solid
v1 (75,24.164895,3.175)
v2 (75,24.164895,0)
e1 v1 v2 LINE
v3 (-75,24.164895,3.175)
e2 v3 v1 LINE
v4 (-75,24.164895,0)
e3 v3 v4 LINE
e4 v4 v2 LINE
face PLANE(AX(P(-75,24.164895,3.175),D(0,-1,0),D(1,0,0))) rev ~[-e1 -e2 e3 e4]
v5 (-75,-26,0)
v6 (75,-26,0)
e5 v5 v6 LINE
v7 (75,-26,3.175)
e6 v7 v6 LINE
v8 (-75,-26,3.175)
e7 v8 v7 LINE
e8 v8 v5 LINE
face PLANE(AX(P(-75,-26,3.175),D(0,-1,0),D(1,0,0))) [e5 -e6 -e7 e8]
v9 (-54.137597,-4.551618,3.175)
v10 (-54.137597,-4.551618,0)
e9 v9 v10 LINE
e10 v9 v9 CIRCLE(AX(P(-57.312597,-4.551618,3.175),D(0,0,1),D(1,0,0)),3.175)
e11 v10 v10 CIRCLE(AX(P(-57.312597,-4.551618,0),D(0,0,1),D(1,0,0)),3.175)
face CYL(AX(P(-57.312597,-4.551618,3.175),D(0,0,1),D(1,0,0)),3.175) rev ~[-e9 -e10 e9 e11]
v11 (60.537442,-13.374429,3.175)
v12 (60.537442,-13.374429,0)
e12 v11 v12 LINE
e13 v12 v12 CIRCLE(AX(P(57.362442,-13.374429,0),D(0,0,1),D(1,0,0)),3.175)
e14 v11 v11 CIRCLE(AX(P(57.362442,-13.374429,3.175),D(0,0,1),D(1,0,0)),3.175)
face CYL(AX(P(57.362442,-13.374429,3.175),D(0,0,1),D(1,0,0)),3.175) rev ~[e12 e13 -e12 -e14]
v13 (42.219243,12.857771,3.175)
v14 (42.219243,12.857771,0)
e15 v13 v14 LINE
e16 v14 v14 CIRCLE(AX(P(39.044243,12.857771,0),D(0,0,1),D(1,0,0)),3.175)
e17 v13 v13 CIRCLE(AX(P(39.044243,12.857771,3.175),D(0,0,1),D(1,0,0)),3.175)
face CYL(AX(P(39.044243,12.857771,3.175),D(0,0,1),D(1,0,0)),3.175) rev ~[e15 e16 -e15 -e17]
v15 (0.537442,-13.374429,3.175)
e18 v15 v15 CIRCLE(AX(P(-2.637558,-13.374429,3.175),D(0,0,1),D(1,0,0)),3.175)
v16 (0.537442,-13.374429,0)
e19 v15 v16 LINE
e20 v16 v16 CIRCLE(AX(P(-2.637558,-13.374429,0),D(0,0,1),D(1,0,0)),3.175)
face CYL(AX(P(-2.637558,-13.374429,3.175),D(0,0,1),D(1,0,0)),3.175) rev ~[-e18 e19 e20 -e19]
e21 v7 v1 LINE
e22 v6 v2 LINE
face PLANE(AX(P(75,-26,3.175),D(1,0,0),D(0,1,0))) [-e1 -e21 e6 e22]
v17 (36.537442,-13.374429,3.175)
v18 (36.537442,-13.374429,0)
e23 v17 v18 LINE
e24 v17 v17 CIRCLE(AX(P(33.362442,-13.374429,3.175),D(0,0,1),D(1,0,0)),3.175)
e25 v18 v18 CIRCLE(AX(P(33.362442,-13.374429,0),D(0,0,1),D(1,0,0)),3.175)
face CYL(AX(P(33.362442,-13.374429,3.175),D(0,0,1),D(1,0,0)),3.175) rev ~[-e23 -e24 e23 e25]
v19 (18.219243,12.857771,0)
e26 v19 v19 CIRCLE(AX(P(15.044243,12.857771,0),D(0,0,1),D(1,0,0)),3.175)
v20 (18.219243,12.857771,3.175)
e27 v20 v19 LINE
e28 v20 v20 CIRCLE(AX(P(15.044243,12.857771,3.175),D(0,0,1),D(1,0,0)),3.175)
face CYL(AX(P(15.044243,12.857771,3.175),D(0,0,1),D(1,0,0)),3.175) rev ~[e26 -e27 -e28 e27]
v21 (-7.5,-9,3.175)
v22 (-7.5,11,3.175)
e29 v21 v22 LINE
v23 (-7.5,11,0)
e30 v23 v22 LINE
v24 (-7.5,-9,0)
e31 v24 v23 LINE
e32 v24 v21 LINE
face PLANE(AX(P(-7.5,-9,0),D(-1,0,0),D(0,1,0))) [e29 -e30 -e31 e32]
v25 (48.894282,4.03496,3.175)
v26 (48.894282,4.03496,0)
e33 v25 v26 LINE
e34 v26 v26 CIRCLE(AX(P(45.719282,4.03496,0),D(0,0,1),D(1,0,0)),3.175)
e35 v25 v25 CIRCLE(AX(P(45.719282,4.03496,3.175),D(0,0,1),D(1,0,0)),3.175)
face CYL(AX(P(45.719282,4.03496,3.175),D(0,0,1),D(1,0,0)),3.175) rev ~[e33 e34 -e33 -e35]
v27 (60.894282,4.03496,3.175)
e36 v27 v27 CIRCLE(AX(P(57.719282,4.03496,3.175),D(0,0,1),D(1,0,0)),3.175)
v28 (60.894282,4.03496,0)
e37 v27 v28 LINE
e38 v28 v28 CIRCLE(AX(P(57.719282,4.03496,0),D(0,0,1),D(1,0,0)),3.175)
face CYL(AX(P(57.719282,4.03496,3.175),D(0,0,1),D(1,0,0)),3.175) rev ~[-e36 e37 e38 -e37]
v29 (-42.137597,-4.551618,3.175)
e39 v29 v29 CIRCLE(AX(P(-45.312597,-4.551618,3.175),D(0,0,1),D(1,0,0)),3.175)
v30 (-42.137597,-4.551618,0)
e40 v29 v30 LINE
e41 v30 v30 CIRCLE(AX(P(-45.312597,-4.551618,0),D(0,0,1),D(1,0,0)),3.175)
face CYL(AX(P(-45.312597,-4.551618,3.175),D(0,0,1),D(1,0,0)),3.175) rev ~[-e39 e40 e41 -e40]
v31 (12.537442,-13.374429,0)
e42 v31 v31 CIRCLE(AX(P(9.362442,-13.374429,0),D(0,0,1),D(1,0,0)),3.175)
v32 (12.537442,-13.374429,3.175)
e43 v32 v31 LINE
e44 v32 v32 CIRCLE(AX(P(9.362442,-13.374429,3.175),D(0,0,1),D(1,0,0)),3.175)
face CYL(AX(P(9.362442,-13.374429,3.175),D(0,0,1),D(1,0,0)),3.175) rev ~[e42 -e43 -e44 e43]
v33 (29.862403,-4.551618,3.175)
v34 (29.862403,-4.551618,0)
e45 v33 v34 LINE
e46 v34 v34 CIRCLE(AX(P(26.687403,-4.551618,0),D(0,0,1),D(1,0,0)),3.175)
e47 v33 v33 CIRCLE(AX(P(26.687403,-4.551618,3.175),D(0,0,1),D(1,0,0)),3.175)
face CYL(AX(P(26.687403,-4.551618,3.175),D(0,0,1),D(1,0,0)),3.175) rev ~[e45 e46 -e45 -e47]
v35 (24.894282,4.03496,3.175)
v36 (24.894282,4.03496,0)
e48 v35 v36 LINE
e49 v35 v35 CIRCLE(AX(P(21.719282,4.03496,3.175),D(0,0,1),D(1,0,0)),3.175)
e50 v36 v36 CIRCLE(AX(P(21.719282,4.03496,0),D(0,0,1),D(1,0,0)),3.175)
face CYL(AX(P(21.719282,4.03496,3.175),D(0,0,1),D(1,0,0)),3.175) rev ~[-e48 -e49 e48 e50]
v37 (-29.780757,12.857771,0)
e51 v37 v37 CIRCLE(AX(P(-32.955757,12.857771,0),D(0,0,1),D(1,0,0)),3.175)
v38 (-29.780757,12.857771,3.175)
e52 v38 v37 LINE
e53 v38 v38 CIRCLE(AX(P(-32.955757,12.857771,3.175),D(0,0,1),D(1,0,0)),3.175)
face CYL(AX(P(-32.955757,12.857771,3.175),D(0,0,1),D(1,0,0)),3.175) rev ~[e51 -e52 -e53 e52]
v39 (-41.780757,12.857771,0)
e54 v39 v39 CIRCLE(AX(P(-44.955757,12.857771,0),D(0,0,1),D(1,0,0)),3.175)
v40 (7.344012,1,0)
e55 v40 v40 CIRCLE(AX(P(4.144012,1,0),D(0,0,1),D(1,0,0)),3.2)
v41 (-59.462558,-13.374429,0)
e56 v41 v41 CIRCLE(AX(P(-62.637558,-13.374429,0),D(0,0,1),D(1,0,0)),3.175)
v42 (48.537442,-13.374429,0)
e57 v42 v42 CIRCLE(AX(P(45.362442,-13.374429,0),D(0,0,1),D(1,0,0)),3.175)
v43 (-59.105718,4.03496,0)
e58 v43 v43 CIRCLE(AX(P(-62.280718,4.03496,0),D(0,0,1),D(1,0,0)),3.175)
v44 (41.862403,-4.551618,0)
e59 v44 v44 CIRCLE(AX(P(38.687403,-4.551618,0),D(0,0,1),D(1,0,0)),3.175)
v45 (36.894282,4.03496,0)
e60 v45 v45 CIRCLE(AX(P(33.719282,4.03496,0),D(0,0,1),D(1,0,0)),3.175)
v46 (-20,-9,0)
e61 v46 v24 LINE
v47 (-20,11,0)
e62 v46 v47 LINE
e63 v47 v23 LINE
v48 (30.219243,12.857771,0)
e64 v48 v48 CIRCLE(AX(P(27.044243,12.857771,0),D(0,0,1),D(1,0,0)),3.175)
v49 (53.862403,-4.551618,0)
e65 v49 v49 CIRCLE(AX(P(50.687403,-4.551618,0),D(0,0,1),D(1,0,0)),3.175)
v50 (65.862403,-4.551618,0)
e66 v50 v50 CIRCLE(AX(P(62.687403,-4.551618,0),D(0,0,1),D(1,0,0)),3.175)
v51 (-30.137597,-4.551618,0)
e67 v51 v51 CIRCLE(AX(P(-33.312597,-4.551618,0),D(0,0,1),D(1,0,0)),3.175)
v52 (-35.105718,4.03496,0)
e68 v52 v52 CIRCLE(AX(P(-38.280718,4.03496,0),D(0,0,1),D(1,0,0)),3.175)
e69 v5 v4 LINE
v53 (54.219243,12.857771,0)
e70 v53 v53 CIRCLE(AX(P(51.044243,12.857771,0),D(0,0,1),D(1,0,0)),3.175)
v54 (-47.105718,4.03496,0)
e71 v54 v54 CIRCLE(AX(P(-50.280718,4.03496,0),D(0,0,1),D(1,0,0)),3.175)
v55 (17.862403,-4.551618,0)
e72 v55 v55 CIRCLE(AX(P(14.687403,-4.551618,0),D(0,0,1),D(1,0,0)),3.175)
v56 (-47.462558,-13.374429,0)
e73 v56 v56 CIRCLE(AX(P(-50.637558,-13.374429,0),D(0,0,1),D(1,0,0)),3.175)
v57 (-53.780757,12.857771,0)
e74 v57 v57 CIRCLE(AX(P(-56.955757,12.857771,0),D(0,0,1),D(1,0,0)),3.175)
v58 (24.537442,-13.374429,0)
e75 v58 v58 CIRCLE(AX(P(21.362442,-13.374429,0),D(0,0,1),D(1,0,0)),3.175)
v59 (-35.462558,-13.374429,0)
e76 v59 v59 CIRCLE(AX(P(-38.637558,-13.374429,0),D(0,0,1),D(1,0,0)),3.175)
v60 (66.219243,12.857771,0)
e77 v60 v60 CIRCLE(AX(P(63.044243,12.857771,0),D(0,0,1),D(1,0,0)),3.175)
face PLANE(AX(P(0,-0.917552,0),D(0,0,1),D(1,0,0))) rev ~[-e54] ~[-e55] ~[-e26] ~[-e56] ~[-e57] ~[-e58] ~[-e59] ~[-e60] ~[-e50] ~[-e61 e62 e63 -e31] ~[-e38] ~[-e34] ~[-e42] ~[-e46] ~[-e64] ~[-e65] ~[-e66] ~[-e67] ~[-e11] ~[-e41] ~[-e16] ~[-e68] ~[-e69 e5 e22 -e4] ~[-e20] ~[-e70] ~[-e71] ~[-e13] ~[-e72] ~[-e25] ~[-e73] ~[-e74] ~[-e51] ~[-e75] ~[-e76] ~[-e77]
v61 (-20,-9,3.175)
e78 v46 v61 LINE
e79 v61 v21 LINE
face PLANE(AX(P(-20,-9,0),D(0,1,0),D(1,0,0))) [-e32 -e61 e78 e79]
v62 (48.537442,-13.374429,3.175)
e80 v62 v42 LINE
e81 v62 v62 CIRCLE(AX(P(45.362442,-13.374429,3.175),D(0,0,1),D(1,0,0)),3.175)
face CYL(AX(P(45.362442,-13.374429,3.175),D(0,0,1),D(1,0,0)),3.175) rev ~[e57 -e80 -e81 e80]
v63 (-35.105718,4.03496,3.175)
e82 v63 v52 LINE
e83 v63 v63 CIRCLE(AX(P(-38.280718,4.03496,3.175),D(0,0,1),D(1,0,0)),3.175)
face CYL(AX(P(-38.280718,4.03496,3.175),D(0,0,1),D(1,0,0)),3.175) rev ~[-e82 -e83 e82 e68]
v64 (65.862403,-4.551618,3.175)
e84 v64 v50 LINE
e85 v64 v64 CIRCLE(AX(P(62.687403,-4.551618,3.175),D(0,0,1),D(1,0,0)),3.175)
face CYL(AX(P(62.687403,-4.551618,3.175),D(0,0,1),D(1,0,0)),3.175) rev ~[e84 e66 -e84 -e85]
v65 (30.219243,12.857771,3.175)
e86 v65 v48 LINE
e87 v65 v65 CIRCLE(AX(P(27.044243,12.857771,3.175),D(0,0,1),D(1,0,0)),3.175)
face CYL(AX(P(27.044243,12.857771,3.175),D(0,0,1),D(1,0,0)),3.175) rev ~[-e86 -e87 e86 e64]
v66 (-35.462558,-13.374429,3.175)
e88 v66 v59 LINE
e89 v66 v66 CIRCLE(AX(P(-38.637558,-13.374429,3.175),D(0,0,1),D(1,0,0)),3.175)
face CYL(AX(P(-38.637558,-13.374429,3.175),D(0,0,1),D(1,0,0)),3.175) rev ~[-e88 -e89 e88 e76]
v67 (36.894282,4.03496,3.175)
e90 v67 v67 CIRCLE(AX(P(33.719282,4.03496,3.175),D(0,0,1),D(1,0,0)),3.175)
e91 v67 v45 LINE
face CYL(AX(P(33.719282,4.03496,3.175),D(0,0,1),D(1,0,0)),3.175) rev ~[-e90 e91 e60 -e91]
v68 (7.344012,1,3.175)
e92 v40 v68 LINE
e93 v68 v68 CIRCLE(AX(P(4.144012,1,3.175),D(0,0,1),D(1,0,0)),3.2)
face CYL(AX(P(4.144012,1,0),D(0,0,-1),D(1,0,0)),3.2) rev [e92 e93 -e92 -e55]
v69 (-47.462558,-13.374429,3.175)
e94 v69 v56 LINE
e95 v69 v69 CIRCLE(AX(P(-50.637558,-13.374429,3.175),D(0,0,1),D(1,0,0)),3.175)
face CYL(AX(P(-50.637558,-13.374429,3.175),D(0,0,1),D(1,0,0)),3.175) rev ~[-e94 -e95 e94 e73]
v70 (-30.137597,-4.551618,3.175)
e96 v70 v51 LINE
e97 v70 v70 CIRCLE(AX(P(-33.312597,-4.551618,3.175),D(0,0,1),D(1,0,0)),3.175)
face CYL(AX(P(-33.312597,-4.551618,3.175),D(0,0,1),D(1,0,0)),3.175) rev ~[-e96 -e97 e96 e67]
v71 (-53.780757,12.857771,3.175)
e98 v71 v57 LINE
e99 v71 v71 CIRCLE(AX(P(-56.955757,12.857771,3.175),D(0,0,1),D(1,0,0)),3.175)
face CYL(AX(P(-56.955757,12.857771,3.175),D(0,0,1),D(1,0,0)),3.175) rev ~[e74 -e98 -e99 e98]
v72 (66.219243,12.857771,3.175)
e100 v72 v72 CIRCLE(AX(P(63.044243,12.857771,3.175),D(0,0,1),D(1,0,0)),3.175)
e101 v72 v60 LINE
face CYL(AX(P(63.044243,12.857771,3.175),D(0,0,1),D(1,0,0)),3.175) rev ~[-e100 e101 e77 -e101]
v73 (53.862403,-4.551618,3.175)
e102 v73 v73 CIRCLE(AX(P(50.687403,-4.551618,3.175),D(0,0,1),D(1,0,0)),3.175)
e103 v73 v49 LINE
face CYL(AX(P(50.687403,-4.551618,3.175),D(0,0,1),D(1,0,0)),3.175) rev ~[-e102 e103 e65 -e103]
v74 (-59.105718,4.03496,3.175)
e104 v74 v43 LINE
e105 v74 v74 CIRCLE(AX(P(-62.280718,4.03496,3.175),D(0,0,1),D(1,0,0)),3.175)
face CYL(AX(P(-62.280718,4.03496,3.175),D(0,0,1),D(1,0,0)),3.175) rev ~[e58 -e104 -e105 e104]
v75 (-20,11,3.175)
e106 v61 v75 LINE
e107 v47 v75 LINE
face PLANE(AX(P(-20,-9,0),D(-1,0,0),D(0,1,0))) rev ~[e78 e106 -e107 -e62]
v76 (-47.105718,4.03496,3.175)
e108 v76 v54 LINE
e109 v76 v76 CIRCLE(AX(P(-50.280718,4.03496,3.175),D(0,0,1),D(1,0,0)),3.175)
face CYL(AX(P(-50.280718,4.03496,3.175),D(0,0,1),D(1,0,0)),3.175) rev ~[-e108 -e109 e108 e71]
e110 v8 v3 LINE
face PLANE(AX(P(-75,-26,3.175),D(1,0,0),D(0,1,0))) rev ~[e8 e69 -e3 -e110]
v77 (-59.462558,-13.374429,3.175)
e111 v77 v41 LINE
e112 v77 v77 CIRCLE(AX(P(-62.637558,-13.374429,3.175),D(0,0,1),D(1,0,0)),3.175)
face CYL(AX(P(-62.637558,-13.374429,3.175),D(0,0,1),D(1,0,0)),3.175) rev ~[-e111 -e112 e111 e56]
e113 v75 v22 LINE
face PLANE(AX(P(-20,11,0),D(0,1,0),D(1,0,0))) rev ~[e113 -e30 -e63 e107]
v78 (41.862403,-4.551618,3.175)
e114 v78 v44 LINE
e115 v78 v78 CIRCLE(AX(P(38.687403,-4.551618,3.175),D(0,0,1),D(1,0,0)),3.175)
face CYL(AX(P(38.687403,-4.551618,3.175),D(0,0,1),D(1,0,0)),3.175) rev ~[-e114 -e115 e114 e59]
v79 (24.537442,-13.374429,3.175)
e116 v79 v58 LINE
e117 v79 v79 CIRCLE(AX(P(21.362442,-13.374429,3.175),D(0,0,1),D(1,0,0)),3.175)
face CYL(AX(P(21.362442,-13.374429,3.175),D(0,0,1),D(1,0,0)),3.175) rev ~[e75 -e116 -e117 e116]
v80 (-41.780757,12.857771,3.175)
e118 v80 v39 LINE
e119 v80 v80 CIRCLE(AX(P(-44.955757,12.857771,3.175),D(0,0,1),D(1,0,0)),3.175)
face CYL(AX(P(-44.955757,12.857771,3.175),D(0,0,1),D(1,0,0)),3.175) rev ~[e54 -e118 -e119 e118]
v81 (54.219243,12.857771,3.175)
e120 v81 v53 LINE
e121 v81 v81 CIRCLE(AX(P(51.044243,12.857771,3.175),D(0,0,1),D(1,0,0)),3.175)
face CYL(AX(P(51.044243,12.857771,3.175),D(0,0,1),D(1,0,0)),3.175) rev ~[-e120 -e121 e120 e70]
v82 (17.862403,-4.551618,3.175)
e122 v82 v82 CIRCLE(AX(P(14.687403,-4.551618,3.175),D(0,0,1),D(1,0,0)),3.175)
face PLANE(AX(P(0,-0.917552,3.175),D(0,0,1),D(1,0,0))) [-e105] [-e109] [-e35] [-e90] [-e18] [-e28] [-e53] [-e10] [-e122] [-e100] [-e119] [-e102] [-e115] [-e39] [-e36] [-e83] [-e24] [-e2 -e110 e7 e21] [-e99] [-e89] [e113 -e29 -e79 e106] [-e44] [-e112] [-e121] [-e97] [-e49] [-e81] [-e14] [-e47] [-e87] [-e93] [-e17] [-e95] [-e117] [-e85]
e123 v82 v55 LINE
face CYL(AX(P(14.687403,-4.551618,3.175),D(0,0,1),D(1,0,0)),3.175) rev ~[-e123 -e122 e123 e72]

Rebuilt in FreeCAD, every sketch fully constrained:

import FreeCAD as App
import Part
import Sketcher

V = App.Vector
Q = App.Units.Quantity

doc = App.newDocument("Part")
params = doc.addObject("Spreadsheet::Sheet", "Params")
for row, (alias, value) in enumerate([
    ("sketch1_height", "3 mm"),
    ("sketch1_height2", "10.25 mm"),
    ("pad1_length", "3.175 mm"),
    ("sketch2_height", "3 mm"),
    ("sketch2_height2", "10.75 mm"),
    ("pad2_length", "3.175 mm"),
    ("sketch3_height", "3 mm"),
    ("sketch3_height2", "13.25 mm"),
    ("pad3_length", "3.175 mm"),
    ("sketch4_height", "3 mm"),
    ("sketch4_height2", "10.75 mm"),
    ("pad4_length", "3.175 mm"),
    ("sketch5_diameter", "6.4 mm"),
    ("sketch5_height", "7 mm"),
    ("sketch5_height2", "16 mm"),
    ("sketch5_height3", "20 mm"),
    ("sketch5_width", "12.5 mm"),
    ("pad5_length", "3.175 mm"),
    ("sketch6_height", "48 mm"),
    ("pad6_length", "3.175 mm"),
    ("sketch7_width", "150 mm"),
    ("sketch7_width2", "146 mm"),
    ("sketch7_height", "48 mm"),
    ("pad7_length", "3.175 mm"),
    ("sketch8_diameter", "6.35 mm"),
    ("pocket1_length", "3.175 mm"),
], start=1):
    params.set(f"A{row}", alias)
    params.set(f"B{row}", "=" + value)
    params.setAlias(f"B{row}", alias)

body = doc.addObject("PartDesign::Body", "Body")

# Sketch on XY plane
sketch1 = doc.addObject("Sketcher::SketchObject", "Sketch")
body.addObject(sketch1)
sketch1.AttachmentSupport = (doc.XY_Plane, [""])
sketch1.MapMode = "FlatFace"
sketch1.addGeometry([
    Part.LineSegment(V(57.7, -13.8, 0), V(57.7, -24, 0)),  # 0
    Part.LineSegment(V(57.7, -24, 0), V(73, -24, 0)),  # 1
    Part.LineSegment(V(73, -24, 0), V(73, -10.8, 0)),  # 2
    Part.LineSegment(V(73, -10.8, 0), V(53.1, -10.8, 0)),  # 3
    Part.LineSegment(V(53.1, -10.8, 0), V(53.1, -13.8, 0)),  # 4
    Part.LineSegment(V(53.1, -13.8, 0), V(57.7, -13.8, 0)),  # 5
], False)
sketch1.addConstraint([
    Sketcher.Constraint("Coincident", 0, 2, 1, 1),
    Sketcher.Constraint("Coincident", 1, 2, 2, 1),
    Sketcher.Constraint("Coincident", 2, 2, 3, 1),
    Sketcher.Constraint("Coincident", 3, 2, 4, 1),
    Sketcher.Constraint("Coincident", 4, 2, 5, 1),
    Sketcher.Constraint("Coincident", 5, 2, 0, 1),
    Sketcher.Constraint("Vertical", 0),
    Sketcher.Constraint("Horizontal", 1),
    Sketcher.Constraint("Vertical", 2),
    Sketcher.Constraint("Horizontal", 3),
    Sketcher.Constraint("Vertical", 4),
    Sketcher.Constraint("Horizontal", 5),
    Sketcher.Constraint("DistanceY", 4, 2, 4, 1, Q("3 mm")),
    Sketcher.Constraint("DistanceY", 0, 2, -1, 1, Q("24 mm")),
    Sketcher.Constraint("DistanceX", -1, 1, 1, 2, Q("73 mm")),
    Sketcher.Constraint("DistanceY", 0, 2, 0, 1, Q("10.25 mm")),
    Sketcher.Constraint("DistanceX", 5, 1, 5, 2, Q("4.595671 mm")),
    Sketcher.Constraint("DistanceX", 1, 1, 1, 2, Q("15.306253 mm")),
])
sketch1.setExpression("Constraints[12]", "Params.sketch1_height")
sketch1.setExpression("Constraints[15]", "Params.sketch1_height2")
pad1 = doc.addObject("PartDesign::Pad", "Pad")
body.addObject(pad1)
pad1.Profile = sketch1
pad1.setExpression("Length", "Params.pad1_length")
body2 = doc.addObject("PartDesign::Body", "Body001")

# Sketch on XY plane
sketch2 = doc.addObject("Sketcher::SketchObject", "Sketch001")
body2.addObject(sketch2)
sketch2.AttachmentSupport = (doc.getObject("XY_Plane001"), [""])
sketch2.MapMode = "FlatFace"
sketch2.addGeometry([
    Part.LineSegment(V(53.1, 13.2, 0), V(73, 13.2, 0)),  # 0
    Part.LineSegment(V(73, 13.2, 0), V(73, 24, 0)),  # 1
    Part.LineSegment(V(73, 24, 0), V(57.7, 24, 0)),  # 2
    Part.LineSegment(V(57.7, 24, 0), V(57.7, 16.2, 0)),  # 3
    Part.LineSegment(V(57.7, 16.2, 0), V(53.1, 16.2, 0)),  # 4
    Part.LineSegment(V(53.1, 16.2, 0), V(53.1, 13.2, 0)),  # 5
], False)
sketch2.addConstraint([
    Sketcher.Constraint("Coincident", 0, 2, 1, 1),
    Sketcher.Constraint("Coincident", 1, 2, 2, 1),
    Sketcher.Constraint("Coincident", 2, 2, 3, 1),
    Sketcher.Constraint("Coincident", 3, 2, 4, 1),
    Sketcher.Constraint("Coincident", 4, 2, 5, 1),
    Sketcher.Constraint("Coincident", 5, 2, 0, 1),
    Sketcher.Constraint("Horizontal", 0),
    Sketcher.Constraint("Vertical", 1),
    Sketcher.Constraint("Horizontal", 2),
    Sketcher.Constraint("Vertical", 3),
    Sketcher.Constraint("Horizontal", 4),
    Sketcher.Constraint("Vertical", 5),
    Sketcher.Constraint("DistanceY", 5, 2, 5, 1, Q("3 mm")),
    Sketcher.Constraint("DistanceX", -1, 1, 0, 2, Q("73 mm")),
    Sketcher.Constraint("DistanceY", -1, 1, 1, 2, Q("24 mm")),
    Sketcher.Constraint("DistanceY", 1, 1, 1, 2, Q("10.75 mm")),
    Sketcher.Constraint("DistanceX", 4, 2, 4, 1, Q("4.595671 mm")),
    Sketcher.Constraint("DistanceX", 0, 1, 0, 2, Q("19.901924 mm")),
])
sketch2.setExpression("Constraints[12]", "Params.sketch2_height")
sketch2.setExpression("Constraints[15]", "Params.sketch2_height2")
pad2 = doc.addObject("PartDesign::Pad", "Pad001")
body2.addObject(pad2)
pad2.Profile = sketch2
pad2.setExpression("Length", "Params.pad2_length")
body3 = doc.addObject("PartDesign::Body", "Body002")

# Sketch on XY plane
sketch3 = doc.addObject("Sketcher::SketchObject", "Sketch002")
body3.addObject(sketch3)
sketch3.AttachmentSupport = (doc.getObject("XY_Plane002"), [""])
sketch3.MapMode = "FlatFace"
sketch3.addGeometry([
    Part.LineSegment(V(-73, -10.8, 0), V(-73, -24, 0)),  # 0
    Part.LineSegment(V(-73, -24, 0), V(-57.7, -24, 0)),  # 1
    Part.LineSegment(V(-57.7, -24, 0), V(-57.7, -13.8, 0)),  # 2
    Part.LineSegment(V(-57.7, -13.8, 0), V(-53.1, -13.8, 0)),  # 3
    Part.LineSegment(V(-53.1, -13.8, 0), V(-53.1, -10.8, 0)),  # 4
    Part.LineSegment(V(-53.1, -10.8, 0), V(-73, -10.8, 0)),  # 5
], False)
sketch3.addConstraint([
    Sketcher.Constraint("Coincident", 0, 2, 1, 1),
    Sketcher.Constraint("Coincident", 1, 2, 2, 1),
    Sketcher.Constraint("Coincident", 2, 2, 3, 1),
    Sketcher.Constraint("Coincident", 3, 2, 4, 1),
    Sketcher.Constraint("Coincident", 4, 2, 5, 1),
    Sketcher.Constraint("Coincident", 5, 2, 0, 1),
    Sketcher.Constraint("Vertical", 0),
    Sketcher.Constraint("Horizontal", 1),
    Sketcher.Constraint("Vertical", 2),
    Sketcher.Constraint("Horizontal", 3),
    Sketcher.Constraint("Vertical", 4),
    Sketcher.Constraint("Horizontal", 5),
    Sketcher.Constraint("DistanceY", 4, 1, 4, 2, Q("3 mm")),
    Sketcher.Constraint("DistanceX", 0, 2, -1, 1, Q("73 mm")),
    Sketcher.Constraint("DistanceY", 0, 2, -1, 1, Q("24 mm")),
    Sketcher.Constraint("DistanceY", 0, 2, 0, 1, Q("13.25 mm")),
    Sketcher.Constraint("DistanceX", 3, 1, 3, 2, Q("4.595671 mm")),
    Sketcher.Constraint("DistanceX", 1, 1, 1, 2, Q("15.306253 mm")),
])
sketch3.setExpression("Constraints[12]", "Params.sketch3_height")
sketch3.setExpression("Constraints[15]", "Params.sketch3_height2")
pad3 = doc.addObject("PartDesign::Pad", "Pad002")
body3.addObject(pad3)
pad3.Profile = sketch3
pad3.setExpression("Length", "Params.pad3_length")
body4 = doc.addObject("PartDesign::Body", "Body003")

# Sketch on XY plane
sketch4 = doc.addObject("Sketcher::SketchObject", "Sketch003")
body4.addObject(sketch4)
sketch4.AttachmentSupport = (doc.getObject("XY_Plane003"), [""])
sketch4.MapMode = "FlatFace"
sketch4.addGeometry([
    Part.LineSegment(V(-57.7, 24, 0), V(-73, 24, 0)),  # 0
    Part.LineSegment(V(-73, 24, 0), V(-73, 13.2, 0)),  # 1
    Part.LineSegment(V(-73, 13.2, 0), V(-53.1, 13.2, 0)),  # 2
    Part.LineSegment(V(-53.1, 13.2, 0), V(-53.1, 16.2, 0)),  # 3
    Part.LineSegment(V(-53.1, 16.2, 0), V(-57.7, 16.2, 0)),  # 4
    Part.LineSegment(V(-57.7, 16.2, 0), V(-57.7, 24, 0)),  # 5
], False)
sketch4.addConstraint([
    Sketcher.Constraint("Coincident", 0, 2, 1, 1),
    Sketcher.Constraint("Coincident", 1, 2, 2, 1),
    Sketcher.Constraint("Coincident", 2, 2, 3, 1),
    Sketcher.Constraint("Coincident", 3, 2, 4, 1),
    Sketcher.Constraint("Coincident", 4, 2, 5, 1),
    Sketcher.Constraint("Coincident", 5, 2, 0, 1),
    Sketcher.Constraint("Horizontal", 0),
    Sketcher.Constraint("Vertical", 1),
    Sketcher.Constraint("Horizontal", 2),
    Sketcher.Constraint("Vertical", 3),
    Sketcher.Constraint("Horizontal", 4),
    Sketcher.Constraint("Vertical", 5),
    Sketcher.Constraint("DistanceY", 3, 1, 3, 2, Q("3 mm")),
    Sketcher.Constraint("DistanceX", 0, 2, -1, 1, Q("73 mm")),
    Sketcher.Constraint("DistanceY", -1, 1, 0, 2, Q("24 mm")),
    Sketcher.Constraint("DistanceY", 1, 2, 1, 1, Q("10.75 mm")),
    Sketcher.Constraint("DistanceX", 4, 2, 4, 1, Q("4.595671 mm")),
    Sketcher.Constraint("DistanceX", 0, 2, 0, 1, Q("15.306253 mm")),
])
sketch4.setExpression("Constraints[12]", "Params.sketch4_height")
sketch4.setExpression("Constraints[15]", "Params.sketch4_height2")
pad4 = doc.addObject("PartDesign::Pad", "Pad003")
body4.addObject(pad4)
pad4.Profile = sketch4
pad4.setExpression("Length", "Params.pad4_length")
body5 = doc.addObject("PartDesign::Body", "Body004")

# Sketch on XY plane
sketch5 = doc.addObject("Sketcher::SketchObject", "Sketch004")
body5.addObject(sketch5)
sketch5.AttachmentSupport = (doc.getObject("XY_Plane004"), [""])
sketch5.MapMode = "FlatFace"
sketch5.addGeometry([
    Part.LineSegment(V(-43.3, -13.8, 0), V(-43.3, -24, 0)),  # 0
    Part.LineSegment(V(-43.3, -24, 0), V(43.3, -24, 0)),  # 1
    Part.LineSegment(V(43.3, -24, 0), V(43.3, -13.8, 0)),  # 2
    Part.LineSegment(V(43.3, -13.8, 0), V(47.9, -13.8, 0)),  # 3
    Part.LineSegment(V(47.9, -13.8, 0), V(47.9, -6.8, 0)),  # 4
    Part.LineSegment(V(47.9, -6.8, 0), V(47.3, -6.8, 0)),  # 5
    Part.LineSegment(V(47.3, -6.8, 0), V(47.3, 9.2, 0)),  # 6
    Part.LineSegment(V(47.3, 9.2, 0), V(47.9, 9.2, 0)),  # 7
    Part.LineSegment(V(47.9, 9.2, 0), V(47.9, 16.2, 0)),  # 8
    Part.LineSegment(V(47.9, 16.2, 0), V(43.3, 16.2, 0)),  # 9
    Part.LineSegment(V(43.3, 16.2, 0), V(43.3, 24, 0)),  # 10
    Part.LineSegment(V(43.3, 24, 0), V(-43.3, 24, 0)),  # 11
    Part.LineSegment(V(-43.3, 24, 0), V(-43.3, 16.2, 0)),  # 12
    Part.LineSegment(V(-43.3, 16.2, 0), V(-47.9, 16.2, 0)),  # 13
    Part.LineSegment(V(-47.9, 16.2, 0), V(-47.9, 9.2, 0)),  # 14
    Part.LineSegment(V(-47.9, 9.2, 0), V(-47.3, 9.2, 0)),  # 15
    Part.LineSegment(V(-47.3, 9.2, 0), V(-47.3, -6.8, 0)),  # 16
    Part.LineSegment(V(-47.3, -6.8, 0), V(-47.9, -6.8, 0)),  # 17
    Part.LineSegment(V(-47.9, -6.8, 0), V(-47.9, -13.8, 0)),  # 18
    Part.LineSegment(V(-47.9, -13.8, 0), V(-43.3, -13.8, 0)),  # 19
    Part.LineSegment(V(-7.5, -9, 0), V(-20, -9, 0)),  # 20
    Part.LineSegment(V(-20, -9, 0), V(-20, 11, 0)),  # 21
    Part.LineSegment(V(-20, 11, 0), V(-7.5, 11, 0)),  # 22
    Part.LineSegment(V(-7.5, 11, 0), V(-7.5, -9, 0)),  # 23
    Part.Circle(V(4.1, 1, 0), V(0, 0, 1), 3.2),  # 24
], False)
sketch5.addConstraint([
    Sketcher.Constraint("Coincident", 0, 2, 1, 1),
    Sketcher.Constraint("Coincident", 1, 2, 2, 1),
    Sketcher.Constraint("Coincident", 2, 2, 3, 1),
    Sketcher.Constraint("Coincident", 3, 2, 4, 1),
    Sketcher.Constraint("Coincident", 4, 2, 5, 1),
    Sketcher.Constraint("Coincident", 5, 2, 6, 1),
    Sketcher.Constraint("Coincident", 6, 2, 7, 1),
    Sketcher.Constraint("Coincident", 7, 2, 8, 1),
    Sketcher.Constraint("Coincident", 8, 2, 9, 1),
    Sketcher.Constraint("Coincident", 9, 2, 10, 1),
    Sketcher.Constraint("Coincident", 10, 2, 11, 1),
    Sketcher.Constraint("Coincident", 11, 2, 12, 1),
    Sketcher.Constraint("Coincident", 12, 2, 13, 1),
    Sketcher.Constraint("Coincident", 13, 2, 14, 1),
    Sketcher.Constraint("Coincident", 14, 2, 15, 1),
    Sketcher.Constraint("Coincident", 15, 2, 16, 1),
    Sketcher.Constraint("Coincident", 16, 2, 17, 1),
    Sketcher.Constraint("Coincident", 17, 2, 18, 1),
    Sketcher.Constraint("Coincident", 18, 2, 19, 1),
    Sketcher.Constraint("Coincident", 19, 2, 0, 1),
    Sketcher.Constraint("Coincident", 20, 2, 21, 1),
    Sketcher.Constraint("Coincident", 21, 2, 22, 1),
    Sketcher.Constraint("Coincident", 22, 2, 23, 1),
    Sketcher.Constraint("Coincident", 23, 2, 20, 1),
    Sketcher.Constraint("Vertical", 0),
    Sketcher.Constraint("Horizontal", 1),
    Sketcher.Constraint("Vertical", 2),
    Sketcher.Constraint("Horizontal", 3),
    Sketcher.Constraint("Vertical", 4),
    Sketcher.Constraint("Horizontal", 5),
    Sketcher.Constraint("Vertical", 6),
    Sketcher.Constraint("Horizontal", 7),
    Sketcher.Constraint("Vertical", 8),
    Sketcher.Constraint("Horizontal", 9),
    Sketcher.Constraint("Vertical", 10),
    Sketcher.Constraint("Horizontal", 11),
    Sketcher.Constraint("Vertical", 12),
    Sketcher.Constraint("Horizontal", 13),
    Sketcher.Constraint("Vertical", 14),
    Sketcher.Constraint("Horizontal", 15),
    Sketcher.Constraint("Vertical", 16),
    Sketcher.Constraint("Horizontal", 17),
    Sketcher.Constraint("Vertical", 18),
    Sketcher.Constraint("Horizontal", 19),
    Sketcher.Constraint("Horizontal", 20),
    Sketcher.Constraint("Vertical", 21),
    Sketcher.Constraint("Horizontal", 22),
    Sketcher.Constraint("Vertical", 23),
    Sketcher.Constraint("Symmetric", 0, 2, 10, 2, -1, 1),
    Sketcher.Constraint("Symmetric", 9, 2, 12, 2, -2),
    Sketcher.Constraint("Symmetric", 7, 2, 14, 2, -2),
    Sketcher.Constraint("Symmetric", 5, 2, 16, 2, -2),
    Sketcher.Constraint("Symmetric", 3, 2, 18, 2, -2),
    Sketcher.Constraint("Vertical", 4, 2, 7, 2),
    Sketcher.Constraint("Vertical", 2, 2, 9, 2),
    Sketcher.Constraint("Equal", 4, 8),
    Sketcher.Constraint("Diameter", 24, Q("6.4 mm")),
    Sketcher.Constraint("DistanceY", 4, 1, 4, 2, Q("7 mm")),
    Sketcher.Constraint("DistanceY", 6, 1, 6, 2, Q("16 mm")),
    Sketcher.Constraint("DistanceY", 21, 1, 21, 2, Q("20 mm")),
    Sketcher.Constraint("DistanceX", 20, 2, 20, 1, Q("12.5 mm")),
    Sketcher.Constraint("DistanceY", -1, 1, 24, 3, Q("1 mm")),
    Sketcher.Constraint("DistanceY", 0, 2, -1, 1, Q("24 mm")),
    Sketcher.Constraint("DistanceX", 20, 2, -1, 1, Q("20 mm")),
    Sketcher.Constraint("DistanceY", 20, 2, -1, 1, Q("9 mm")),
    Sketcher.Constraint("DistanceY", 0, 2, 0, 1, Q("10.25 mm")),
    Sketcher.Constraint("DistanceX", 5, 2, 5, 1, Q("0.564201 mm")),
    Sketcher.Constraint("DistanceX", 3, 1, 3, 2, Q("4.595671 mm")),
    Sketcher.Constraint("DistanceX", 1, 1, 1, 2, Q("86.612505 mm")),
    Sketcher.Constraint("DistanceX", -1, 1, 24, 3, Q("4.144012 mm")),
])
sketch5.setExpression("Constraints[56]", "Params.sketch5_diameter")
sketch5.setExpression("Constraints[57]", "Params.sketch5_height")
sketch5.setExpression("Constraints[58]", "Params.sketch5_height2")
sketch5.setExpression("Constraints[59]", "Params.sketch5_height3")
sketch5.setExpression("Constraints[60]", "Params.sketch5_width")
pad5 = doc.addObject("PartDesign::Pad", "Pad004")
body5.addObject(pad5)
pad5.Profile = sketch5
pad5.setExpression("Length", "Params.pad5_length")
body.AllowCompound = True
doc.recompute()

boolean = doc.addObject("PartDesign::Boolean", "Boolean")
body.addObject(boolean)
boolean.Type = "Fuse"
boolean.addObjects([body2])
doc.recompute()

boolean2 = doc.addObject("PartDesign::Boolean", "Boolean001")
body.addObject(boolean2)
boolean2.Type = "Fuse"
boolean2.addObjects([body3])
doc.recompute()

boolean3 = doc.addObject("PartDesign::Boolean", "Boolean002")
body.addObject(boolean3)
boolean3.Type = "Fuse"
boolean3.addObjects([body4])
doc.recompute()

boolean4 = doc.addObject("PartDesign::Boolean", "Boolean003")
body.addObject(boolean4)
boolean4.Type = "Fuse"
boolean4.addObjects([body5])

# Sketch on XY plane
sketch6 = doc.addObject("Sketcher::SketchObject", "Sketch005")
body.addObject(sketch6)
sketch6.AttachmentSupport = (doc.XY_Plane, [""])
sketch6.MapMode = "FlatFace"
sketch6.AttachmentOffset = App.Placement(V(0, 0, 3.175), App.Rotation())
sketch6.addGeometry([
    Part.LineSegment(V(-73, 24, 0), V(-73, -24, 0)),  # 0
    Part.LineSegment(V(-73, -24, 0), V(-30, -24, 0)),  # 1
    Part.LineSegment(V(-30, -24, 0), V(-30, 24, 0)),  # 2
    Part.LineSegment(V(-30, 24, 0), V(-73, 24, 0)),  # 3
    Part.LineSegment(V(37, 24, 0), V(37, -24, 0)),  # 4
    Part.LineSegment(V(37, -24, 0), V(73, -24, 0)),  # 5
    Part.LineSegment(V(73, -24, 0), V(73, 24, 0)),  # 6
    Part.LineSegment(V(73, 24, 0), V(37, 24, 0)),  # 7
], False)
sketch6.addConstraint([
    Sketcher.Constraint("Coincident", 0, 2, 1, 1),
    Sketcher.Constraint("Coincident", 1, 2, 2, 1),
    Sketcher.Constraint("Coincident", 2, 2, 3, 1),
    Sketcher.Constraint("Coincident", 3, 2, 0, 1),
    Sketcher.Constraint("Coincident", 4, 2, 5, 1),
    Sketcher.Constraint("Coincident", 5, 2, 6, 1),
    Sketcher.Constraint("Coincident", 6, 2, 7, 1),
    Sketcher.Constraint("Coincident", 7, 2, 4, 1),
    Sketcher.Constraint("Vertical", 0),
    Sketcher.Constraint("Horizontal", 1),
    Sketcher.Constraint("Vertical", 2),
    Sketcher.Constraint("Horizontal", 3),
    Sketcher.Constraint("Vertical", 4),
    Sketcher.Constraint("Horizontal", 5),
    Sketcher.Constraint("Vertical", 6),
    Sketcher.Constraint("Horizontal", 7),
    Sketcher.Constraint("Symmetric", 3, 2, 5, 2, -1, 1),
    Sketcher.Constraint("Horizontal", 1, 2, 4, 2),
    Sketcher.Constraint("Horizontal", 3, 2, 6, 2),
    Sketcher.Constraint("DistanceY", 0, 2, 0, 1, Q("48 mm")),
    Sketcher.Constraint("DistanceX", 0, 2, -1, 1, Q("73 mm")),
    Sketcher.Constraint("DistanceX", 5, 1, 5, 2, Q("36.488078 mm")),
    Sketcher.Constraint("DistanceX", 1, 1, 1, 2, Q("43.267165 mm")),
])
sketch6.setExpression("Constraints[19]", "Params.sketch6_height")
pad6 = doc.addObject("PartDesign::Pad", "Pad005")
body.addObject(pad6)
pad6.Profile = sketch6
pad6.setExpression("Length", "Params.pad6_length")
pad6.Reversed = True

# Sketch on XY plane
sketch7 = doc.addObject("Sketcher::SketchObject", "Sketch006")
body.addObject(sketch7)
sketch7.AttachmentSupport = (doc.XY_Plane, [""])
sketch7.MapMode = "FlatFace"
sketch7.AttachmentOffset = App.Placement(V(0, 0, 3.175), App.Rotation())
sketch7.addGeometry([
    Part.LineSegment(V(-75, 24, 0), V(-75, -26, 0)),  # 0
    Part.LineSegment(V(-75, -26, 0), V(75, -26, 0)),  # 1
    Part.LineSegment(V(75, -26, 0), V(75, 24, 0)),  # 2
    Part.LineSegment(V(75, 24, 0), V(-75, 24, 0)),  # 3
    Part.LineSegment(V(73, -24, 0), V(-73, -24, 0)),  # 4
    Part.LineSegment(V(-73, -24, 0), V(-73, 24, 0)),  # 5
    Part.LineSegment(V(-73, 24, 0), V(73, 24, 0)),  # 6
    Part.LineSegment(V(73, 24, 0), V(73, -24, 0)),  # 7
], False)
sketch7.addConstraint([
    Sketcher.Constraint("Coincident", 0, 2, 1, 1),
    Sketcher.Constraint("Coincident", 1, 2, 2, 1),
    Sketcher.Constraint("Coincident", 2, 2, 3, 1),
    Sketcher.Constraint("Coincident", 3, 2, 0, 1),
    Sketcher.Constraint("Coincident", 4, 2, 5, 1),
    Sketcher.Constraint("Coincident", 5, 2, 6, 1),
    Sketcher.Constraint("Coincident", 6, 2, 7, 1),
    Sketcher.Constraint("Coincident", 7, 2, 4, 1),
    Sketcher.Constraint("Vertical", 0),
    Sketcher.Constraint("Horizontal", 1),
    Sketcher.Constraint("Vertical", 2),
    Sketcher.Constraint("Horizontal", 3),
    Sketcher.Constraint("Horizontal", 4),
    Sketcher.Constraint("Vertical", 5),
    Sketcher.Constraint("Horizontal", 6),
    Sketcher.Constraint("Vertical", 7),
    Sketcher.Constraint("Symmetric", 4, 2, 6, 2, -1, 1),
    Sketcher.Constraint("DistanceX", 1, 1, 1, 2, Q("150 mm")),
    Sketcher.Constraint("DistanceX", 4, 2, 4, 1, Q("146 mm")),
    Sketcher.Constraint("DistanceY", 5, 1, 5, 2, Q("48 mm")),
    Sketcher.Constraint("DistanceX", 0, 2, -1, 1, Q("75 mm")),
    Sketcher.Constraint("DistanceY", 0, 2, -1, 1, Q("26 mm")),
    Sketcher.Constraint("DistanceY", 0, 2, 0, 1, Q("50.164895 mm")),
])
sketch7.setExpression("Constraints[17]", "Params.sketch7_width")
sketch7.setExpression("Constraints[18]", "Params.sketch7_width2")
sketch7.setExpression("Constraints[19]", "Params.sketch7_height")
pad7 = doc.addObject("PartDesign::Pad", "Pad006")
body.addObject(pad7)
pad7.Profile = sketch7
pad7.setExpression("Length", "Params.pad7_length")
pad7.Reversed = True

# Sketch on XY plane
sketch8 = doc.addObject("Sketcher::SketchObject", "Sketch007")
body.addObject(sketch8)
sketch8.AttachmentSupport = (doc.XY_Plane, [""])
sketch8.MapMode = "FlatFace"
sketch8.AttachmentOffset = App.Placement(V(0, 0, 3.175), App.Rotation())
sketch8.addGeometry([
    Part.Circle(V(-57, 12.9, 0), V(0, 0, 1), 3.2),  # 0
    Part.Circle(V(-45, 12.9, 0), V(0, 0, 1), 3.2),  # 1
    Part.Circle(V(-33, 12.9, 0), V(0, 0, 1), 3.2),  # 2
    Part.Circle(V(15, 12.9, 0), V(0, 0, 1), 3.2),  # 3
    Part.Circle(V(27, 12.9, 0), V(0, 0, 1), 3.2),  # 4
    Part.Circle(V(39, 12.9, 0), V(0, 0, 1), 3.2),  # 5
    Part.Circle(V(51, 12.9, 0), V(0, 0, 1), 3.2),  # 6
    Part.Circle(V(63, 12.9, 0), V(0, 0, 1), 3.2),  # 7
    Part.Circle(V(-62.3, 4, 0), V(0, 0, 1), 3.2),  # 8
    Part.Circle(V(-50.3, 4, 0), V(0, 0, 1), 3.2),  # 9
    Part.Circle(V(-38.3, 4, 0), V(0, 0, 1), 3.2),  # 10
    Part.Circle(V(21.7, 4, 0), V(0, 0, 1), 3.2),  # 11
    Part.Circle(V(33.7, 4, 0), V(0, 0, 1), 3.2),  # 12
    Part.Circle(V(45.7, 4, 0), V(0, 0, 1), 3.2),  # 13
    Part.Circle(V(57.7, 4, 0), V(0, 0, 1), 3.2),  # 14
    Part.Circle(V(-57.3, -4.6, 0), V(0, 0, 1), 3.2),  # 15
    Part.Circle(V(-45.3, -4.6, 0), V(0, 0, 1), 3.2),  # 16
    Part.Circle(V(-33.3, -4.6, 0), V(0, 0, 1), 3.2),  # 17
    Part.Circle(V(14.7, -4.6, 0), V(0, 0, 1), 3.2),  # 18
    Part.Circle(V(26.7, -4.6, 0), V(0, 0, 1), 3.2),  # 19
    Part.Circle(V(38.7, -4.6, 0), V(0, 0, 1), 3.2),  # 20
    Part.Circle(V(50.7, -4.6, 0), V(0, 0, 1), 3.2),  # 21
    Part.Circle(V(62.7, -4.6, 0), V(0, 0, 1), 3.2),  # 22
    Part.Circle(V(-62.6, -13.4, 0), V(0, 0, 1), 3.2),  # 23
    Part.Circle(V(-50.6, -13.4, 0), V(0, 0, 1), 3.2),  # 24
    Part.Circle(V(-38.6, -13.4, 0), V(0, 0, 1), 3.2),  # 25
    Part.Circle(V(-2.6, -13.4, 0), V(0, 0, 1), 3.2),  # 26
    Part.Circle(V(9.4, -13.4, 0), V(0, 0, 1), 3.2),  # 27
    Part.Circle(V(21.4, -13.4, 0), V(0, 0, 1), 3.2),  # 28
    Part.Circle(V(33.4, -13.4, 0), V(0, 0, 1), 3.2),  # 29
    Part.Circle(V(45.4, -13.4, 0), V(0, 0, 1), 3.2),  # 30
    Part.Circle(V(57.4, -13.4, 0), V(0, 0, 1), 3.2),  # 31
], False)
sketch8.addConstraint([
    Sketcher.Constraint("Equal", 0, 1),
    Sketcher.Constraint("Equal", 1, 2),
    Sketcher.Constraint("Equal", 2, 3),
    Sketcher.Constraint("Equal", 3, 4),
    Sketcher.Constraint("Equal", 4, 5),
    Sketcher.Constraint("Equal", 5, 6),
    Sketcher.Constraint("Equal", 6, 7),
    Sketcher.Constraint("Equal", 7, 8),
    Sketcher.Constraint("Equal", 8, 9),
    Sketcher.Constraint("Equal", 9, 10),
    Sketcher.Constraint("Equal", 10, 11),
    Sketcher.Constraint("Equal", 11, 12),
    Sketcher.Constraint("Equal", 12, 13),
    Sketcher.Constraint("Equal", 13, 14),
    Sketcher.Constraint("Equal", 14, 15),
    Sketcher.Constraint("Equal", 15, 16),
    Sketcher.Constraint("Equal", 16, 17),
    Sketcher.Constraint("Equal", 17, 18),
    Sketcher.Constraint("Equal", 18, 19),
    Sketcher.Constraint("Equal", 19, 20),
    Sketcher.Constraint("Equal", 20, 21),
    Sketcher.Constraint("Equal", 21, 22),
    Sketcher.Constraint("Equal", 22, 23),
    Sketcher.Constraint("Equal", 23, 24),
    Sketcher.Constraint("Equal", 24, 25),
    Sketcher.Constraint("Equal", 25, 26),
    Sketcher.Constraint("Equal", 26, 27),
    Sketcher.Constraint("Equal", 27, 28),
    Sketcher.Constraint("Equal", 28, 29),
    Sketcher.Constraint("Equal", 29, 30),
    Sketcher.Constraint("Equal", 30, 31),
    Sketcher.Constraint("Horizontal", 0, 3, 1, 3),
    Sketcher.Constraint("Horizontal", 1, 3, 2, 3),
    Sketcher.Constraint("Horizontal", 2, 3, 3, 3),
    Sketcher.Constraint("Horizontal", 3, 3, 4, 3),
    Sketcher.Constraint("Horizontal", 4, 3, 5, 3),
    Sketcher.Constraint("Horizontal", 5, 3, 6, 3),
    Sketcher.Constraint("Horizontal", 6, 3, 7, 3),
    Sketcher.Constraint("Horizontal", 8, 3, 9, 3),
    Sketcher.Constraint("Horizontal", 9, 3, 10, 3),
    Sketcher.Constraint("Horizontal", 10, 3, 11, 3),
    Sketcher.Constraint("Horizontal", 11, 3, 12, 3),
    Sketcher.Constraint("Horizontal", 12, 3, 13, 3),
    Sketcher.Constraint("Horizontal", 13, 3, 14, 3),
    Sketcher.Constraint("Horizontal", 15, 3, 16, 3),
    Sketcher.Constraint("Horizontal", 16, 3, 17, 3),
    Sketcher.Constraint("Horizontal", 17, 3, 18, 3),
    Sketcher.Constraint("Horizontal", 18, 3, 19, 3),
    Sketcher.Constraint("Horizontal", 19, 3, 20, 3),
    Sketcher.Constraint("Horizontal", 20, 3, 21, 3),
    Sketcher.Constraint("Horizontal", 21, 3, 22, 3),
    Sketcher.Constraint("Horizontal", 23, 3, 24, 3),
    Sketcher.Constraint("Horizontal", 24, 3, 25, 3),
    Sketcher.Constraint("Horizontal", 25, 3, 26, 3),
    Sketcher.Constraint("Horizontal", 26, 3, 27, 3),
    Sketcher.Constraint("Horizontal", 27, 3, 28, 3),
    Sketcher.Constraint("Horizontal", 28, 3, 29, 3),
    Sketcher.Constraint("Horizontal", 29, 3, 30, 3),
    Sketcher.Constraint("Horizontal", 30, 3, 31, 3),
    Sketcher.Constraint("Diameter", 0, Q("6.35 mm")),
    Sketcher.Constraint("DistanceX", 0, 3, 1, 3, Q("12 mm")),
    Sketcher.Constraint("DistanceX", 1, 3, 2, 3, Q("12 mm")),
    Sketcher.Constraint("DistanceX", 2, 3, 3, 3, Q("48 mm")),
    Sketcher.Constraint("DistanceX", 3, 3, 4, 3, Q("12 mm")),
    Sketcher.Constraint("DistanceX", 4, 3, 5, 3, Q("12 mm")),
    Sketcher.Constraint("DistanceX", 5, 3, 6, 3, Q("12 mm")),
    Sketcher.Constraint("DistanceX", 6, 3, 7, 3, Q("12 mm")),
    Sketcher.Constraint("DistanceX", 8, 3, 9, 3, Q("12 mm")),
    Sketcher.Constraint("DistanceX", 9, 3, 10, 3, Q("12 mm")),
    Sketcher.Constraint("DistanceX", 11, 3, 12, 3, Q("12 mm")),
    Sketcher.Constraint("DistanceX", 12, 3, 13, 3, Q("12 mm")),
    Sketcher.Constraint("DistanceX", 13, 3, 14, 3, Q("12 mm")),
    Sketcher.Constraint("DistanceX", 15, 3, 16, 3, Q("12 mm")),
    Sketcher.Constraint("DistanceX", 16, 3, 17, 3, Q("12 mm")),
    Sketcher.Constraint("DistanceX", 18, 3, 19, 3, Q("12 mm")),
    Sketcher.Constraint("DistanceX", 19, 3, 20, 3, Q("12 mm")),
    Sketcher.Constraint("DistanceX", 20, 3, 21, 3, Q("12 mm")),
    Sketcher.Constraint("DistanceX", 21, 3, 22, 3, Q("12 mm")),
    Sketcher.Constraint("DistanceX", 23, 3, 24, 3, Q("12 mm")),
    Sketcher.Constraint("DistanceX", 24, 3, 25, 3, Q("12 mm")),
    Sketcher.Constraint("DistanceX", 26, 3, 27, 3, Q("12 mm")),
    Sketcher.Constraint("DistanceX", 27, 3, 28, 3, Q("12 mm")),
    Sketcher.Constraint("DistanceX", 28, 3, 29, 3, Q("12 mm")),
    Sketcher.Constraint("DistanceX", 29, 3, 30, 3, Q("12 mm")),
    Sketcher.Constraint("DistanceX", 30, 3, 31, 3, Q("12 mm")),
    Sketcher.Constraint("DistanceX", 23, 3, 0, 3, Q("5.681801 mm")),
    Sketcher.Constraint("DistanceY", 23, 3, 0, 3, Q("26.2322 mm")),
    Sketcher.Constraint("DistanceX", 26, 3, 3, 3, Q("17.681801 mm")),
    Sketcher.Constraint("DistanceY", -1, 1, 0, 3, Q("12.857771 mm")),
    Sketcher.Constraint("DistanceX", 8, 3, -1, 1, Q("62.280718 mm")),
    Sketcher.Constraint("DistanceY", -1, 1, 8, 3, Q("4.03496 mm")),
    Sketcher.Constraint("DistanceX", -1, 1, 11, 3, Q("21.719282 mm")),
    Sketcher.Constraint("DistanceX", 23, 3, -1, 1, Q("62.637558 mm")),
    Sketcher.Constraint("DistanceX", 8, 3, 15, 3, Q("4.968121 mm")),
    Sketcher.Constraint("DistanceY", 15, 3, 8, 3, Q("8.586578 mm")),
    Sketcher.Constraint("DistanceX", 18, 3, 11, 3, Q("7.031879 mm")),
])
sketch8.setExpression("Constraints[59]", "Params.sketch8_diameter")
pocket1 = doc.addObject("PartDesign::Pocket", "Pocket")
body.addObject(pocket1)
pocket1.Profile = sketch8
pocket1.setExpression("Length", "Params.pocket1_length")

doc.recompute()
